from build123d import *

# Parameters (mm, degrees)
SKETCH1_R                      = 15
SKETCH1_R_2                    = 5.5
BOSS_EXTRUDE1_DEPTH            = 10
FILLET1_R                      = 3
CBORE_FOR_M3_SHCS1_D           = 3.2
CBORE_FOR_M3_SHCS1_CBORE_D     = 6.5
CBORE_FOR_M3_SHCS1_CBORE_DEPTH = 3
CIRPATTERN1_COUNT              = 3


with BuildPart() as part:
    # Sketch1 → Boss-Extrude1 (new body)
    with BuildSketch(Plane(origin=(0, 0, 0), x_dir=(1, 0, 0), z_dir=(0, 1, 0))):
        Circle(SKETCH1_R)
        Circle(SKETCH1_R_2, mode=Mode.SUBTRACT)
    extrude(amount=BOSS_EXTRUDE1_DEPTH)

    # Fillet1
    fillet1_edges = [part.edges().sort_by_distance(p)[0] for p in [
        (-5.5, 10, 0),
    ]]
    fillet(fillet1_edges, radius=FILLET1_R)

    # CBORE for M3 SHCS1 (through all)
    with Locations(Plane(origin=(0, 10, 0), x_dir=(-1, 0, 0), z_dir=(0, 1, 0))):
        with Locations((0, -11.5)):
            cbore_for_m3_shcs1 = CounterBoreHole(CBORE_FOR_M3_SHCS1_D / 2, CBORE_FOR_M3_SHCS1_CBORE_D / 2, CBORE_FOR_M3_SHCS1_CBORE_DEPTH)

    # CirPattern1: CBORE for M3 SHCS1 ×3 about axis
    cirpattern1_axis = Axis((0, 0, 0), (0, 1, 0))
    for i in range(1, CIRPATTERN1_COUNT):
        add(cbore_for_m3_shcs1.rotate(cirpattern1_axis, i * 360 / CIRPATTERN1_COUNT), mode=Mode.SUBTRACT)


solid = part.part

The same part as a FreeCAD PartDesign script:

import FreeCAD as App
import Part
import Sketcher
Q = App.Units.Quantity


def edges_at(feature, points):
    """Names of the edges that pass closest to the given points."""
    edges = feature.Shape.Edges
    near = lambda p: min(range(len(edges)), key=lambda i: edges[i].distToShape(Part.Vertex(*p))[0])
    return sorted({f"Edge{near(p) + 1}" for p in points})

doc = App.newDocument("Part")
body = doc.addObject("PartDesign::Body", "Body")

# Sketch on XZ plane
sketch1 = body.newObject("Sketcher::SketchObject", "Sketch")
sketch1.AttachmentSupport = (doc.getObject("XZ_Plane"), [""])
sketch1.MapMode = "FlatFace"
sketch1.addGeometry(Part.Circle(App.Vector(0, 0, 0), App.Vector(0, 0, 1), 15), False)
sketch1.addGeometry(Part.Circle(App.Vector(0, 0, 0), App.Vector(0, 0, 1), 6), False)
sketch1.addConstraint(Sketcher.Constraint("Coincident", 0, 3, -1, 1))
sketch1.addConstraint(Sketcher.Constraint("Coincident", 1, 3, -1, 1))
sketch1.addConstraint(Sketcher.Constraint("Diameter", 0, Q("30 mm")))
sketch1.addConstraint(Sketcher.Constraint("Diameter", 1, Q("11 mm")))
pad1 = body.newObject("PartDesign::Pad", "Pad")
pad1.Profile = sketch1
pad1.Length = 10
pad1.Reversed = True
doc.recompute()

fillet = body.newObject("PartDesign::Fillet", "Fillet")
fillet.Base = (pad1, edges_at(pad1, [(-5.5, 10, 0)]))
fillet.Radius = 3

# Sketch on XZ plane
sketch2 = body.newObject("Sketcher::SketchObject", "Sketch001")
sketch2.AttachmentSupport = (doc.getObject("XZ_Plane"), [""])
sketch2.MapMode = "FlatFace"
sketch2.AttachmentOffset = App.Placement(App.Vector(0, 0, -10), App.Rotation())
sketch2.addGeometry(Part.Circle(App.Vector(0, -11.5, 0), App.Vector(0, 0, 1), 1.6), False)
sketch2.addConstraint(Sketcher.Constraint("PointOnObject", 0, 3, -2))
sketch2.addConstraint(Sketcher.Constraint("Diameter", 0, Q("3.2 mm")))
sketch2.addConstraint(Sketcher.Constraint("DistanceY", 0, 3, -1, 1, Q("11.5 mm")))
doc.recompute()
hole = body.newObject("PartDesign::Hole", "Hole")
hole.Profile = sketch2
hole.ThreadType = "None"
hole.Diameter = 3.2
hole.DepthType = "ThroughAll"
hole.HoleCutType = "Counterbore"
hole.HoleCutDiameter = 6.5
hole.HoleCutDepth = 3
hole.Reversed = True
doc.recompute()

polarpattern = body.newObject("PartDesign::PolarPattern", "PolarPattern")
polarpattern.Originals = [hole]
polarpattern.Axis = (doc.getObject("Y_Axis"), [""])
polarpattern.Angle = 360
polarpattern.Occurrences = 3
body.Tip = polarpattern

doc.recompute()
